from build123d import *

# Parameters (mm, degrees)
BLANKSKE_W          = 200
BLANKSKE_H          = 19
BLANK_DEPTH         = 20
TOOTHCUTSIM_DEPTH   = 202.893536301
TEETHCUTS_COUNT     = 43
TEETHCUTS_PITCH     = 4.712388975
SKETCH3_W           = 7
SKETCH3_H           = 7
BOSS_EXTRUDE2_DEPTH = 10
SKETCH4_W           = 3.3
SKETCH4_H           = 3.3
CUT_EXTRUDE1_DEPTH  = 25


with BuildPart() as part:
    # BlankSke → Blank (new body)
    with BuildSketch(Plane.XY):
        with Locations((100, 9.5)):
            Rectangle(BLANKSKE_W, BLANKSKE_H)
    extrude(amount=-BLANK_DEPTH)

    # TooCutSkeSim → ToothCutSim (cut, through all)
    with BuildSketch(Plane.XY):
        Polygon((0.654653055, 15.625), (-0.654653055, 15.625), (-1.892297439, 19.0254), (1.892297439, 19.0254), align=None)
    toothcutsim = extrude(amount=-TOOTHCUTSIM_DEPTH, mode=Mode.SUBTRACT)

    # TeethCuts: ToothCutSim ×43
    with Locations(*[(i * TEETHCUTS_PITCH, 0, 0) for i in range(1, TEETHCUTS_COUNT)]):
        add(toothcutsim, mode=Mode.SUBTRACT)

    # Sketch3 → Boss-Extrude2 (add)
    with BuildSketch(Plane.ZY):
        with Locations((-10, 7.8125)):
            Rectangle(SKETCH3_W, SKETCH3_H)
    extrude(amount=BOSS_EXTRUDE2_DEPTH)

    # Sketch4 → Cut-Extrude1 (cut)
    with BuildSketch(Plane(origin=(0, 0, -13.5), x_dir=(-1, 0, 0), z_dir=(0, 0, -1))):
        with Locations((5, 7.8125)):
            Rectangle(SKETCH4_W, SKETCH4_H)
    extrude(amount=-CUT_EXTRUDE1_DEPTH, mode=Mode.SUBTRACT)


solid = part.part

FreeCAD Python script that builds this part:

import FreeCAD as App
import Part
import Sketcher

V = App.Vector
Q = App.Units.Quantity


def add_polygon(sketch, points):
    """Adds a closed chain of lines whose ends are joined by coincident constraints."""
    first, n = sketch.GeometryCount, len(points)
    for a, b in zip(points, points[1:] + points[:1]):
        sketch.addGeometry(Part.LineSegment(App.Vector(*a, 0), App.Vector(*b, 0)), False)
    for i in range(n):
        sketch.addConstraint(Sketcher.Constraint("Coincident", first + i, 2, first + (i + 1) % n, 1))

doc = App.newDocument("Part")
body = doc.addObject("PartDesign::Body", "Body")

sketch1 = doc.addObject("Sketcher::SketchObject", "Sketch")
body.addObject(sketch1)
sketch1.AttachmentSupport = (doc.XY_Plane, [""])
sketch1.MapMode = "FlatFace"
add_polygon(sketch1, [(0, 19), (0, 0), (200, 0), (200, 19)])
sketch1.addConstraint([
    Sketcher.Constraint("Vertical", 0),
    Sketcher.Constraint("Horizontal", 1),
    Sketcher.Constraint("Vertical", 2),
    Sketcher.Constraint("Horizontal", 3),
    Sketcher.Constraint("Coincident", 0, 2, -1, 1),
    Sketcher.Constraint("DistanceX", 1, 1, 1, 2, Q("200 mm")),
    Sketcher.Constraint("DistanceY", 0, 2, 0, 1, Q("19 mm")),
])
pad1 = doc.addObject("PartDesign::Pad", "Pad")
body.addObject(pad1)
pad1.Profile = sketch1
pad1.Length = 20
pad1.Reversed = True

sketch2 = doc.addObject("Sketcher::SketchObject", "Sketch001")
body.addObject(sketch2)
sketch2.AttachmentSupport = (doc.XY_Plane, [""])
sketch2.MapMode = "FlatFace"
add_polygon(sketch2, [(-0.7, 15.6), (0.7, 15.6), (1.9, 19), (-1.9, 19)])
sketch2.addConstraint([
    Sketcher.Constraint("Horizontal", 0),
    Sketcher.Constraint("Horizontal", 2),
    Sketcher.Constraint("Equal", 1, 3),
    Sketcher.Constraint("Angle", 1, Q("70 deg")),
    Sketcher.Constraint("DistanceY", -1, 1, 0, 2, Q("15.625 mm")),
    Sketcher.Constraint("DistanceY", -1, 1, 1, 2, Q("19.0254 mm")),
    Sketcher.Constraint("DistanceX", 0, 1, 0, 2, Q("1.309306 mm")),
    Sketcher.Constraint("DistanceX", -1, 1, 0, 2, Q("0.654653 mm")),
])
pocket1 = doc.addObject("PartDesign::Pocket", "Pocket")
body.addObject(pocket1)
pocket1.Profile = sketch2
pocket1.Type = "ThroughAll"
doc.recompute()

linearpattern = doc.addObject("PartDesign::LinearPattern", "LinearPattern")
body.addObject(linearpattern)
linearpattern.Originals = [pocket1]
linearpattern.Direction = (doc.X_Axis, [""])
linearpattern.Mode = "offset"
linearpattern.Offset = 4.712389
linearpattern.Occurrences = 43
body.Tip = linearpattern

sketch3 = doc.addObject("Sketcher::SketchObject", "Sketch002")
body.addObject(sketch3)
sketch3.AttachmentSupport = (doc.YZ_Plane, [""])
sketch3.MapMode = "FlatFace"
add_polygon(sketch3, [(11, -14), (4, -14), (4, -6), (11, -6)])
sketch3.addConstraint([
    Sketcher.Constraint("Horizontal", 0),
    Sketcher.Constraint("Vertical", 1),
    Sketcher.Constraint("Horizontal", 2),
    Sketcher.Constraint("Vertical", 3),
    Sketcher.Constraint("Equal", 2, 1),
    Sketcher.Constraint("DistanceX", 0, 2, 0, 1, Q("7 mm")),
    Sketcher.Constraint("DistanceY", 0, 2, -1, 1, Q("13.5 mm")),
    Sketcher.Constraint("DistanceX", -1, 1, 0, 2, Q("4.3125 mm")),
])
pad2 = doc.addObject("PartDesign::Pad", "Pad001")
body.addObject(pad2)
pad2.Profile = sketch3
pad2.Length = 10
pad2.Reversed = True

sketch4 = doc.addObject("Sketcher::SketchObject", "Sketch003")
body.addObject(sketch4)
sketch4.AttachmentSupport = (doc.XY_Plane, [""])
sketch4.MapMode = "FlatFace"
sketch4.AttachmentOffset = App.Placement(V(0, 0, -13.5), App.Rotation())
add_polygon(sketch4, [(-3.4, 9.5), (-3.4, 6.2), (-6.7, 6.2), (-6.7, 9.5)])
sketch4.addConstraint([
    Sketcher.Constraint("Vertical", 0),
    Sketcher.Constraint("Horizontal", 1),
    Sketcher.Constraint("Vertical", 2),
    Sketcher.Constraint("Horizontal", 3),
    Sketcher.Constraint("Equal", 3, 0),
    Sketcher.Constraint("DistanceX", 1, 2, 1, 1, Q("3.3 mm")),
    Sketcher.Constraint("DistanceX", 0, 2, -1, 1, Q("3.35 mm")),
    Sketcher.Constraint("DistanceY", -1, 1, 0, 2, Q("6.1625 mm")),
])
pocket2 = doc.addObject("PartDesign::Pocket", "Pocket001")
body.addObject(pocket2)
pocket2.Profile = sketch4
pocket2.Length = 25
pocket2.Reversed = True

doc.recompute()
